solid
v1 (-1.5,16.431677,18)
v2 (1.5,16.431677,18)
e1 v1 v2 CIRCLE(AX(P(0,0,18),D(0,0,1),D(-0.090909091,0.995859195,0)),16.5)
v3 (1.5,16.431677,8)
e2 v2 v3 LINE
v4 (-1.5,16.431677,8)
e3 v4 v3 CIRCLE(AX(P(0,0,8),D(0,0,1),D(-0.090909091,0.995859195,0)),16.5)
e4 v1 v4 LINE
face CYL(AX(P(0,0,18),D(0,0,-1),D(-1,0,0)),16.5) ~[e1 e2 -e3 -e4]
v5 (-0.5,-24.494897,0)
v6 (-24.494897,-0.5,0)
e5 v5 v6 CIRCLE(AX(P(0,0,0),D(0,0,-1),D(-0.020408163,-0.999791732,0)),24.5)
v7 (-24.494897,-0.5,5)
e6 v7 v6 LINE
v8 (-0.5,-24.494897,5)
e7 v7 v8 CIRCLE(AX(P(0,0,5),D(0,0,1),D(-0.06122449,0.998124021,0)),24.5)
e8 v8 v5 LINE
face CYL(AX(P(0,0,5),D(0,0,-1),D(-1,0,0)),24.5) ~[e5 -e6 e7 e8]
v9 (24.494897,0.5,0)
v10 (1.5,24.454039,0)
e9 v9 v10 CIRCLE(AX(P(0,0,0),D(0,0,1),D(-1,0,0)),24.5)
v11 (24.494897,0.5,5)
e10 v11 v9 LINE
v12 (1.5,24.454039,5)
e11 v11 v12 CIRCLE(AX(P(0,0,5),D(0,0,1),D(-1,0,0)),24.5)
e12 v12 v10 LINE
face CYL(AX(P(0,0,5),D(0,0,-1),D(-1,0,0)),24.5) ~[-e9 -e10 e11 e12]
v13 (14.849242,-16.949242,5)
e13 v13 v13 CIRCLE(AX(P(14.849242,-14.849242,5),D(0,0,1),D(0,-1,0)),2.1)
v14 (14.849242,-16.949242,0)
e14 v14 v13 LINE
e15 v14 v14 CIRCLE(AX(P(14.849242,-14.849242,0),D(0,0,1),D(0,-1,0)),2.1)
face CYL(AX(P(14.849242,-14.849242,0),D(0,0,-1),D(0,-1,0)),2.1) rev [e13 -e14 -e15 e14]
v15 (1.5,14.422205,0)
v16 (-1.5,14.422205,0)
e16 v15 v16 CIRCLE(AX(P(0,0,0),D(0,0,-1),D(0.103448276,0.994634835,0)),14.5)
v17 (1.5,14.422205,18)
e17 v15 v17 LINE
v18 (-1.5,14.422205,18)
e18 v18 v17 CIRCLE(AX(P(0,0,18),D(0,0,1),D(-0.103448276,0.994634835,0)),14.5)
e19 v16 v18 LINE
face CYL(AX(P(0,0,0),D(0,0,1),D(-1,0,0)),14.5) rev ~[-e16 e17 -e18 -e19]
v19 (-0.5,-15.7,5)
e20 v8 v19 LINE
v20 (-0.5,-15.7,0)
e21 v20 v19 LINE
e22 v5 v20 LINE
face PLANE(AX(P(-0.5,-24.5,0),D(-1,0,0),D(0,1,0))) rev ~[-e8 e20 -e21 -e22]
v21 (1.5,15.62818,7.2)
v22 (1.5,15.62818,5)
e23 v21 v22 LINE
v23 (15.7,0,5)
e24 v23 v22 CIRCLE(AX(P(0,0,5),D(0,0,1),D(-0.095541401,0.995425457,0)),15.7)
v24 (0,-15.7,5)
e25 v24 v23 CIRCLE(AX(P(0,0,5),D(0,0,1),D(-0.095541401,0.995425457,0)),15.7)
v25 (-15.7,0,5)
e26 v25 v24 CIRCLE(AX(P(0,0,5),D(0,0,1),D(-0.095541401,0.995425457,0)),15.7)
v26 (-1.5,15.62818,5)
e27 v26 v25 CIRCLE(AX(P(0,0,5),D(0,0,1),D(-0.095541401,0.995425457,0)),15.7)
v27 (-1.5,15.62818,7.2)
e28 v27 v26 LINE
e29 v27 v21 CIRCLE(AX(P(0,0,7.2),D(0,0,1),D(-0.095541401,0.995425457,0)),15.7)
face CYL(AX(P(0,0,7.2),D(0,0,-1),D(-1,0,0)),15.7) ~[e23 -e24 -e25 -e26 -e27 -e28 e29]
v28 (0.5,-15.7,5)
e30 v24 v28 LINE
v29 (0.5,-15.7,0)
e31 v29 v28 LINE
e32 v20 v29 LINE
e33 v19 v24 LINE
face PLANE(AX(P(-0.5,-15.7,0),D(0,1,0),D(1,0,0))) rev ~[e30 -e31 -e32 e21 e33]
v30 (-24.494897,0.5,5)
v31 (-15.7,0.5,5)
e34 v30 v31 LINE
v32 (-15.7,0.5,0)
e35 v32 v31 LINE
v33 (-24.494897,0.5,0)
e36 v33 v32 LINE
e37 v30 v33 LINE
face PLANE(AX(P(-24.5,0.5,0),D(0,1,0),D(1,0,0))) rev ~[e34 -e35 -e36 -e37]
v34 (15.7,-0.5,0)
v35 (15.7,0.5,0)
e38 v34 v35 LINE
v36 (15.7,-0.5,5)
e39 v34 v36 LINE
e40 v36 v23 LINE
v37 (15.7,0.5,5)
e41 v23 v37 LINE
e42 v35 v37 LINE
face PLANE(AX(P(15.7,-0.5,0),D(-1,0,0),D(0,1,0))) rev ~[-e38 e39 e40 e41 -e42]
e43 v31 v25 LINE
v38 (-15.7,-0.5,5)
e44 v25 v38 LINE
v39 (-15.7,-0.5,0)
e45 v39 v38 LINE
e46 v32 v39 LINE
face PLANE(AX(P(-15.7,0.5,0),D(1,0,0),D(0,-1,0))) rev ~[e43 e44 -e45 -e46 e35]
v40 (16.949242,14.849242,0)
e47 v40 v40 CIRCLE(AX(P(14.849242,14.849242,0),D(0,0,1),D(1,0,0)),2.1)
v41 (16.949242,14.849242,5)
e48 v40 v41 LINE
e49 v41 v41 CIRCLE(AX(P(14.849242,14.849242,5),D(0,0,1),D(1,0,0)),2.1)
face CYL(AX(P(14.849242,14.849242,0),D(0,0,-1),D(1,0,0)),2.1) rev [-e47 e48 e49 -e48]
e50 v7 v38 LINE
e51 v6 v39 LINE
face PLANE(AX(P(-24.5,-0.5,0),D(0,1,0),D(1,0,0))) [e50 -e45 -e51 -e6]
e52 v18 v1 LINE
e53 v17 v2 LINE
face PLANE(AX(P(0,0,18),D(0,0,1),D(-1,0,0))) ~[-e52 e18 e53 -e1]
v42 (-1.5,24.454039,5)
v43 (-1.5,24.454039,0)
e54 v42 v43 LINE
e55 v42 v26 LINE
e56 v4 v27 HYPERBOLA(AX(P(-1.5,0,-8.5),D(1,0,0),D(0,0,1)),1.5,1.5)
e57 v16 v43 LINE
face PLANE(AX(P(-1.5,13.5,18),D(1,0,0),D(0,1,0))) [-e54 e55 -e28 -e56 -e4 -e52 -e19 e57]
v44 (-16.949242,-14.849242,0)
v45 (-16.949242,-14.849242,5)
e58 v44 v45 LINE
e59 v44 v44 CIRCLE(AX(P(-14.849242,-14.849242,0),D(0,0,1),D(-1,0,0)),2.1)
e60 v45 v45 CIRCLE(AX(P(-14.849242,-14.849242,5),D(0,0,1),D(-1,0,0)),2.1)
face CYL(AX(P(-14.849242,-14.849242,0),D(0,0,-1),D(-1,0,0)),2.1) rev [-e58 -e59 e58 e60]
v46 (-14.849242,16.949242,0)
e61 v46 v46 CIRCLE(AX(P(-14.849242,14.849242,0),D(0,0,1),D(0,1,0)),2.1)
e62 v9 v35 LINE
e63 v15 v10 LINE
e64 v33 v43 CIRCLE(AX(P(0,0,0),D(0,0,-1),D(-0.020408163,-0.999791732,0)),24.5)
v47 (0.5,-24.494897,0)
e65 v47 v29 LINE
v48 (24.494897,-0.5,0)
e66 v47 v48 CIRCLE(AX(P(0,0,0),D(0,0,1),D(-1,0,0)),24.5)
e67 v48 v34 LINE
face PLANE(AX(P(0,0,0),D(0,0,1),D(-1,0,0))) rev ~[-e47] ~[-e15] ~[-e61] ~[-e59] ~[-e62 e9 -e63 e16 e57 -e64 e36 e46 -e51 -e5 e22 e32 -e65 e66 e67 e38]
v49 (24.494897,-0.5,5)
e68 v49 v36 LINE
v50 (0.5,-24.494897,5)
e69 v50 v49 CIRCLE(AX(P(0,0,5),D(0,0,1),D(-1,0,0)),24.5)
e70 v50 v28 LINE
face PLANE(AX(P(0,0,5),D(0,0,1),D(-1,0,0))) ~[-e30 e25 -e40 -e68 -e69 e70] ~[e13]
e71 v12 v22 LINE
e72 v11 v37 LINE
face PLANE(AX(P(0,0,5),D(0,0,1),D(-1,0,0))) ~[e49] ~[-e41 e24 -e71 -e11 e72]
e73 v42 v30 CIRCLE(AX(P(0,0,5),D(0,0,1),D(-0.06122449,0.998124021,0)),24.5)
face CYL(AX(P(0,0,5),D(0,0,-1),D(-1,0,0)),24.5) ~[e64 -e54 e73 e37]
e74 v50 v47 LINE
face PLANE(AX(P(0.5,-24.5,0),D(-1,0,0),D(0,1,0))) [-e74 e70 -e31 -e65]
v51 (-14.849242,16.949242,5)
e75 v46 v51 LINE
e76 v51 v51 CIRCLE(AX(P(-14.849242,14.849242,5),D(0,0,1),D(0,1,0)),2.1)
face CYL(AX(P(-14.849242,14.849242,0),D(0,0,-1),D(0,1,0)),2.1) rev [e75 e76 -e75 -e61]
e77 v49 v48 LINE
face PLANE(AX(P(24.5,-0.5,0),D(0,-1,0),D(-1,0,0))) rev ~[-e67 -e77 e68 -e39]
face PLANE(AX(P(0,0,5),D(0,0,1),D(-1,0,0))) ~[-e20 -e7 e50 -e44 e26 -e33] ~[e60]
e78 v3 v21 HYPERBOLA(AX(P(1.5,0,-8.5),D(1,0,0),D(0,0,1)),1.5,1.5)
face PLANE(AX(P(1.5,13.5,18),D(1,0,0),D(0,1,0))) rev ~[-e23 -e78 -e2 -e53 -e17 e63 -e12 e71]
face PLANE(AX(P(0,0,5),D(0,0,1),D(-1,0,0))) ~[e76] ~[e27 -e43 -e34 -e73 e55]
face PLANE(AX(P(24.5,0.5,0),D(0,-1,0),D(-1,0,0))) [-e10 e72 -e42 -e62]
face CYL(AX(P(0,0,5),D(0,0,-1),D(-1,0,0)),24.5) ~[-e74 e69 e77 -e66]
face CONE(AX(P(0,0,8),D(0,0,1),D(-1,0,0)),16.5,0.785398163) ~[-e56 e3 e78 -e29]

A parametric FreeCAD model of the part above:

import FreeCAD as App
import Part
import Sketcher
Q = App.Units.Quantity


def add_polygon(sketch, points):
    """Adds a closed chain of lines whose ends are joined by coincident constraints."""
    first, n = sketch.GeometryCount, len(points)
    for a, b in zip(points, points[1:] + points[:1]):
        sketch.addGeometry(Part.LineSegment(App.Vector(*a, 0), App.Vector(*b, 0)), False)
    for i in range(n):
        sketch.addConstraint(Sketcher.Constraint("Coincident", first + i, 2, first + (i + 1) % n, 1))

doc = App.newDocument("Part")
body = doc.addObject("PartDesign::Body", "Body")

# Sketch on XZ plane
sketch1 = body.newObject("Sketcher::SketchObject", "Sketch")
sketch1.AttachmentSupport = (doc.getObject("XZ_Plane"), [""])
sketch1.MapMode = "FlatFace"
add_polygon(sketch1, [(-14.5, 0), (-14.5, 18), (-16.5, 18), (-16.5, 8), (-15.7, 7.2), (-15.7, 5), (-24.5, 5), (-24.5, 0)])  # lines 0-7
sketch1.addConstraint(Sketcher.Constraint("Vertical", 0))
sketch1.addConstraint(Sketcher.Constraint("Horizontal", 1))
sketch1.addConstraint(Sketcher.Constraint("Vertical", 2))
sketch1.addConstraint(Sketcher.Constraint("Vertical", 4))
sketch1.addConstraint(Sketcher.Constraint("Horizontal", 5))
sketch1.addConstraint(Sketcher.Constraint("Vertical", 6))
sketch1.addConstraint(Sketcher.Constraint("Horizontal", 7))
sketch1.addConstraint(Sketcher.Constraint("PointOnObject", 6, 2, -1))
sketch1.addConstraint(Sketcher.Constraint("Equal", 7, 2))
sketch1.addConstraint(Sketcher.Constraint("DistanceX", 1, 2, 1, 1, Q("2 mm")))
sketch1.addConstraint(Sketcher.Constraint("DistanceX", 7, 1, 7, 2, Q("10 mm")))
sketch1.addConstraint(Sketcher.Constraint("DistanceY", 0, 1, 0, 2, Q("18 mm")))
sketch1.addConstraint(Sketcher.Constraint("DistanceY", 6, 2, 6, 1, Q("5 mm")))
sketch1.addConstraint(Sketcher.Constraint("Angle", 3, Q("-45 deg")))
sketch1.addConstraint(Sketcher.Constraint("DistanceX", 5, 2, 5, 1, Q("8.8 mm")))
sketch1.addConstraint(Sketcher.Constraint("DistanceX", 0, 2, -1, 1, Q("14.5 mm")))
revolution = body.newObject("PartDesign::Revolution", "Revolution")
revolution.Profile = sketch1
revolution.ReferenceAxis = (sketch1, ["V_Axis"])
revolution.Angle = 360

# Sketch on XY plane
sketch2 = body.newObject("Sketcher::SketchObject", "Sketch001")
sketch2.AttachmentSupport = (doc.getObject("XY_Plane"), [""])
sketch2.MapMode = "FlatFace"
sketch2.AttachmentOffset = App.Placement(App.Vector(0, 0, 18), App.Rotation())
add_polygon(sketch2, [(-1.5, 25.5), (-1.5, 13.5), (1.5, 13.5), (1.5, 25.5)])  # lines 0-3
sketch2.addConstraint(Sketcher.Constraint("Vertical", 0))
sketch2.addConstraint(Sketcher.Constraint("Horizontal", 1))
sketch2.addConstraint(Sketcher.Constraint("Vertical", 2))
sketch2.addConstraint(Sketcher.Constraint("Horizontal", 3))
sketch2.addConstraint(Sketcher.Constraint("DistanceX", 1, 1, 1, 2, Q("3 mm")))
sketch2.addConstraint(Sketcher.Constraint("DistanceY", 0, 2, 0, 1, Q("12 mm")))
sketch2.addConstraint(Sketcher.Constraint("DistanceX", 0, 2, -1, 1, Q("1.5 mm")))
sketch2.addConstraint(Sketcher.Constraint("DistanceY", -1, 1, 0, 2, Q("13.5 mm")))
pocket1 = body.newObject("PartDesign::Pocket", "Pocket")
pocket1.Profile = sketch2
pocket1.Type = "ThroughAll"

# Sketch on XY plane
sketch3 = body.newObject("Sketcher::SketchObject", "Sketch002")
sketch3.AttachmentSupport = (doc.getObject("XY_Plane"), [""])
sketch3.MapMode = "FlatFace"
add_polygon(sketch3, [(-0.5, -15.7), (-0.5, -24.5), (0.5, -24.5), (0.5, -15.7)])  # lines 0-3
sketch3.addConstraint(Sketcher.Constraint("Vertical", 0))
sketch3.addConstraint(Sketcher.Constraint("Horizontal", 1))
sketch3.addConstraint(Sketcher.Constraint("Vertical", 2))
sketch3.addConstraint(Sketcher.Constraint("Horizontal", 3))
sketch3.addConstraint(Sketcher.Constraint("DistanceX", 1, 1, 1, 2, Q("1 mm")))
sketch3.addConstraint(Sketcher.Constraint("DistanceY", 0, 2, 0, 1, Q("8.8 mm")))
sketch3.addConstraint(Sketcher.Constraint("DistanceX", 0, 2, -1, 1, Q("0.5 mm")))
sketch3.addConstraint(Sketcher.Constraint("DistanceY", 0, 2, -1, 1, Q("24.5 mm")))
pocket2 = body.newObject("PartDesign::Pocket", "Pocket001")
pocket2.Profile = sketch3
pocket2.Length = 5
pocket2.Reversed = True
doc.recompute()

polarpattern = body.newObject("PartDesign::PolarPattern", "PolarPattern")
polarpattern.Originals = [pocket2]
polarpattern.Axis = (doc.getObject("Z_Axis"), [""])
polarpattern.Angle = 360
polarpattern.Occurrences = 4
body.Tip = polarpattern

# Sketch on XY plane
sketch4 = body.newObject("Sketcher::SketchObject", "Sketch003")
sketch4.AttachmentSupport = (doc.getObject("XY_Plane"), [""])
sketch4.MapMode = "FlatFace"
sketch4.addGeometry(Part.Circle(App.Vector(14.8, 14.8, 0), App.Vector(0, 0, 1), 2.1), False)
sketch4.addConstraint(Sketcher.Constraint("Diameter", 0, Q("4.2 mm")))
sketch4.addConstraint(Sketcher.Constraint("DistanceX", -1, 1, 0, 3, Q("14.849242 mm")))
sketch4.addConstraint(Sketcher.Constraint("DistanceY", -1, 1, 0, 3, Q("14.849242 mm")))
pocket3 = body.newObject("PartDesign::Pocket", "Pocket002")
pocket3.Profile = sketch4
pocket3.Length = 5
pocket3.Reversed = True
doc.recompute()

polarpattern2 = body.newObject("PartDesign::PolarPattern", "PolarPattern001")
polarpattern2.Originals = [pocket3]
polarpattern2.Axis = (doc.getObject("Z_Axis"), [""])
polarpattern2.Angle = 360
polarpattern2.Occurrences = 4
body.Tip = polarpattern2

doc.recompute()
